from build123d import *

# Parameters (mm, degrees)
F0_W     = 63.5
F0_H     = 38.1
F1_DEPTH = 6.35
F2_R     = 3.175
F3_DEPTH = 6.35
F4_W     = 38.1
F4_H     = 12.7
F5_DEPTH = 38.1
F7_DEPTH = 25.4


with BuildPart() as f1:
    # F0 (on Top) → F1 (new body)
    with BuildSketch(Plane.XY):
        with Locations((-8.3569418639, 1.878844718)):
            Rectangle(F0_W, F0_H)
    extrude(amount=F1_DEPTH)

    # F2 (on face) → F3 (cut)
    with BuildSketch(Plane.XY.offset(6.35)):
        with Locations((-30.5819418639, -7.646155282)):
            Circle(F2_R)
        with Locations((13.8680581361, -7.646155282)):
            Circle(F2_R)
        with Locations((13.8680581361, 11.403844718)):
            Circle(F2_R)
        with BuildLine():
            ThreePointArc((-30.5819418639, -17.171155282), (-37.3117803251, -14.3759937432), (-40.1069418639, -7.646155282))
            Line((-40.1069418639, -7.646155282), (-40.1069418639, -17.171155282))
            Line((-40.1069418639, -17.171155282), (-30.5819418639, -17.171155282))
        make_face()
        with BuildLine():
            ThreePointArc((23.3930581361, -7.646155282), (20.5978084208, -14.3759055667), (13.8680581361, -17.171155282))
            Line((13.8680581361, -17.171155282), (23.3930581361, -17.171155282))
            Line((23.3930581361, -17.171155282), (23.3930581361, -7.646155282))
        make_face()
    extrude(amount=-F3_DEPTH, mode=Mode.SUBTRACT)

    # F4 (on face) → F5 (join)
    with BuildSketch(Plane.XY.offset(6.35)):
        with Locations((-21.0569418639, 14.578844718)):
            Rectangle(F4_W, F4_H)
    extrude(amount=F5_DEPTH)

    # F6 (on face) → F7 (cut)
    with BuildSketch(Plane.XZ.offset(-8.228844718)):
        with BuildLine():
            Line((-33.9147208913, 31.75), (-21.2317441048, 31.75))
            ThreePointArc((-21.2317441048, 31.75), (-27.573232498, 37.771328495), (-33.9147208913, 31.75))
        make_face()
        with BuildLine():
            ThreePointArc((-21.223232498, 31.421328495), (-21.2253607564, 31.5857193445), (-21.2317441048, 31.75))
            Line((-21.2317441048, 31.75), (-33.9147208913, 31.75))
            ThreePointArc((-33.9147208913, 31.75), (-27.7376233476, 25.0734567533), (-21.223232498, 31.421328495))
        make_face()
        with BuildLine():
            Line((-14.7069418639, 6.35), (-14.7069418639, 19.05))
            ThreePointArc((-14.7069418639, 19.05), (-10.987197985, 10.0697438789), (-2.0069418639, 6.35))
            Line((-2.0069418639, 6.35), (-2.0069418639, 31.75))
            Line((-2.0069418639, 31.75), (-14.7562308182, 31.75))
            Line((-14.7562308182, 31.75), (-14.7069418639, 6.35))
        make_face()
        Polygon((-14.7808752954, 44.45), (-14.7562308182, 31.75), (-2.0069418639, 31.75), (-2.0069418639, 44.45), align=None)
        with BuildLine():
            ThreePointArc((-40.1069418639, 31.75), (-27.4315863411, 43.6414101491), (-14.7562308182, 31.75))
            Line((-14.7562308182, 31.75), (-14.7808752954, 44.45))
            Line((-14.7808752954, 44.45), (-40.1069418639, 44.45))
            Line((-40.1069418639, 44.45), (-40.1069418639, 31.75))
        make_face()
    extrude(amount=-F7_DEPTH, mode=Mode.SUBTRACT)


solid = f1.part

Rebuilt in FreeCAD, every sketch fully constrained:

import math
import FreeCAD as App
import Part
import Sketcher

V = App.Vector
Q = App.Units.Quantity


def add_polygon(sketch, points):
    """Adds a closed chain of lines whose ends are joined by coincident constraints."""
    first, n = sketch.GeometryCount, len(points)
    for a, b in zip(points, points[1:] + points[:1]):
        sketch.addGeometry(Part.LineSegment(App.Vector(*a, 0), App.Vector(*b, 0)), False)
    for i in range(n):
        sketch.addConstraint(Sketcher.Constraint("Coincident", first + i, 2, first + (i + 1) % n, 1))

doc = App.newDocument("Part")
body = doc.addObject("PartDesign::Body", "Body")

# Sketch on XY plane
sketch1 = body.newObject("Sketcher::SketchObject", "Sketch")
sketch1.AttachmentSupport = (doc.getObject("XY_Plane"), [""])
sketch1.MapMode = "FlatFace"
add_polygon(sketch1, [(-40, 21), (-40, -17), (23, -17), (23, 21)])  # lines 0-3
sketch1.addConstraint([
    Sketcher.Constraint("Vertical", 0),
    Sketcher.Constraint("Horizontal", 1),
    Sketcher.Constraint("Vertical", 2),
    Sketcher.Constraint("Horizontal", 3),
    Sketcher.Constraint("DistanceX", 1, 1, 1, 2, Q("2.5 in")),
    Sketcher.Constraint("DistanceY", 0, 2, 0, 1, Q("1.5 in")),
    Sketcher.Constraint("DistanceX", 0, 2, -1, 1, 40.106942),
    Sketcher.Constraint("DistanceY", 0, 2, -1, 1, 17.171155),
])
pad1 = body.newObject("PartDesign::Pad", "Pad")
pad1.Profile = sketch1
pad1.Length = Q("0.25 in")

# Sketch on XY plane
sketch2 = body.newObject("Sketcher::SketchObject", "Sketch001")
sketch2.AttachmentSupport = (doc.getObject("XY_Plane"), [""])
sketch2.MapMode = "FlatFace"
sketch2.AttachmentOffset = App.Placement(V(0, 0, 0.25 * 25.4), App.Rotation())
sketch2.addGeometry([
    Part.Circle(V(-30.6, -7.6, 0), V(0, 0, 1), 3.2),  # 0
    Part.Circle(V(13.9, -7.6, 0), V(0, 0, 1), 3.2),  # 1
    Part.Circle(V(13.9, 11.4, 0), V(0, 0, 1), 3.2),  # 2
    Part.ArcOfCircle(Part.Circle(V(-30.6, -7.6, 0), V(0, 0, 1), 9.5), math.radians(-180), math.radians(-90)),  # 3
    Part.LineSegment(V(-40.1, -7.6, 0), V(-40.1, -17.2, 0)),  # 4
    Part.LineSegment(V(-40.1, -17.2, 0), V(-30.6, -17.2, 0)),  # 5
    Part.ArcOfCircle(Part.Circle(V(13.8, -7.6, 0), V(0, 0, 1), 9.5), math.radians(-90), math.radians(0)),  # 6
    Part.LineSegment(V(13.9, -17.2, 0), V(23.4, -17.2, 0)),  # 7
    Part.LineSegment(V(23.4, -17.2, 0), V(23.4, -7.6, 0)),  # 8
], False)
sketch2.addConstraint([
    Sketcher.Constraint("Coincident", 3, 1, 4, 1),
    Sketcher.Constraint("Coincident", 4, 2, 5, 1),
    Sketcher.Constraint("Coincident", 5, 2, 3, 2),
    Sketcher.Constraint("Coincident", 6, 1, 7, 1),
    Sketcher.Constraint("Coincident", 7, 2, 8, 1),
    Sketcher.Constraint("Coincident", 8, 2, 6, 2),
    Sketcher.Constraint("Vertical", 4),
    Sketcher.Constraint("Horizontal", 5),
    Sketcher.Constraint("Horizontal", 7),
    Sketcher.Constraint("Vertical", 8),
    Sketcher.Constraint("Equal", 0, 1),
    Sketcher.Constraint("Equal", 1, 2),
    Sketcher.Constraint("Horizontal", 0, 3, 1, 3),
    Sketcher.Constraint("Horizontal", 1, 3, 3, 1),
    Sketcher.Constraint("Horizontal", 5, 2, 6, 1),
    Sketcher.Constraint("Horizontal", 3, 1, 8, 2),
    Sketcher.Constraint("Vertical", 1, 3, 2, 3),
    Sketcher.Constraint("Vertical", 0, 3, 5, 2),
    Sketcher.Constraint("Vertical", 2, 3, 6, 1),
    Sketcher.Constraint("Equal", 5, 7),
    Sketcher.Constraint("Equal", 7, 4),
    Sketcher.Constraint("Diameter", 0, Q("0.25 in")),
    Sketcher.Constraint("DistanceX", 5, 1, 5, 2, Q("0.375 in")),
    Sketcher.Constraint("DistanceX", 0, 3, 1, 3, Q("1.75 in")),
    Sketcher.Constraint("DistanceY", 1, 3, 2, 3, Q("0.75 in")),
    Sketcher.Constraint("Radius", 3, 9.543338),
    Sketcher.Constraint("Radius", 6, 9.543642),
    Sketcher.Constraint("DistanceX", 0, 3, -1, 1, 30.581942),
    Sketcher.Constraint("DistanceY", 6, 3, -1, 1, 7.627532),
])
pocket1 = body.newObject("PartDesign::Pocket", "Pocket")
pocket1.Profile = sketch2
pocket1.Length = Q("0.25 in")

# Sketch on XY plane
sketch3 = body.newObject("Sketcher::SketchObject", "Sketch002")
sketch3.AttachmentSupport = (doc.getObject("XY_Plane"), [""])
sketch3.MapMode = "FlatFace"
sketch3.AttachmentOffset = App.Placement(V(0, 0, 0.25 * 25.4), App.Rotation())
add_polygon(sketch3, [(-40, 21), (-40, 8), (-2, 8), (-2, 21)])  # lines 0-3
sketch3.addConstraint([
    Sketcher.Constraint("Vertical", 0),
    Sketcher.Constraint("Horizontal", 1),
    Sketcher.Constraint("Vertical", 2),
    Sketcher.Constraint("Horizontal", 3),
    Sketcher.Constraint("DistanceX", 1, 1, 1, 2, Q("1.5 in")),
    Sketcher.Constraint("DistanceY", 0, 2, 0, 1, Q("0.5 in")),
    Sketcher.Constraint("DistanceX", 0, 2, -1, 1, 40.106942),
    Sketcher.Constraint("DistanceY", -1, 1, 0, 2, 8.228845),
])
pad2 = body.newObject("PartDesign::Pad", "Pad001")
pad2.Profile = sketch3
pad2.Length = Q("1.5 in")

# Sketch on XZ plane
sketch4 = body.newObject("Sketcher::SketchObject", "Sketch003")
sketch4.AttachmentSupport = (doc.getObject("XZ_Plane"), [""])
sketch4.MapMode = "FlatFace"
sketch4.AttachmentOffset = App.Placement(V(0, 0, -8.228845), App.Rotation())
sketch4.addGeometry([
    Part.ArcOfCircle(Part.Circle(V(-27.57, 31.42, 0), V(0, 0, 1), 6.35), math.radians(3), math.radians(177)),  # 0
    Part.ArcOfCircle(Part.Circle(V(-27.57, 31.42, 0), V(0, 0, 1), 6.35), math.radians(177), math.radians(360)),  # 1
    Part.ArcOfCircle(Part.Circle(V(-27.57, 31.42, 0), V(0, 0, 1), 6.35), math.radians(0), math.radians(2.97)),  # 2
    Part.LineSegment(V(-14.71, 6.35, 0), V(-14.71, 19.05, 0)),  # 3
    Part.ArcOfCircle(Part.Circle(V(-2.01, 19.05, 0), V(0, 0, 1), 12.7), math.radians(180), math.radians(270)),  # 4
    Part.LineSegment(V(-2.01, 6.35, 0), V(-2.01, 44.45, 0)),  # 5
    Part.LineSegment(V(-2.01, 44.45, 0), V(-40.11, 44.45, 0)),  # 6
    Part.LineSegment(V(-40.11, 44.45, 0), V(-40.11, 31.75, 0)),  # 7
    Part.ArcOfCircle(Part.Circle(V(-27.43, 30.94, 0), V(0, 0, 1), 12.7), math.radians(4), math.radians(176)),  # 8
    Part.LineSegment(V(-14.76, 31.75, 0), V(-14.71, 6.35, 0)),  # 9
], False)
sketch4.addConstraint([
    Sketcher.Constraint("Tangent", 0, 2, 1, 1),
    Sketcher.Constraint("Tangent", 1, 2, 2, 1),
    Sketcher.Constraint("Tangent", 2, 2, 0, 1),
    Sketcher.Constraint("Tangent", 3, 2, 4, 1),
    Sketcher.Constraint("Coincident", 4, 2, 5, 1),
    Sketcher.Constraint("Coincident", 5, 2, 6, 1),
    Sketcher.Constraint("Coincident", 6, 2, 7, 1),
    Sketcher.Constraint("Coincident", 7, 2, 8, 2),
    Sketcher.Constraint("Coincident", 8, 1, 9, 1),
    Sketcher.Constraint("Coincident", 9, 2, 3, 1),
    Sketcher.Constraint("Vertical", 3),
    Sketcher.Constraint("Vertical", 5),
    Sketcher.Constraint("Horizontal", 6),
    Sketcher.Constraint("Vertical", 7),
    Sketcher.Constraint("Horizontal", 2, 3, 1, 2),
    Sketcher.Constraint("Horizontal", 0, 2, 2, 2),
    Sketcher.Constraint("Horizontal", 2, 2, 7, 2),
    Sketcher.Constraint("Horizontal", 7, 2, 8, 1),
    Sketcher.Constraint("Horizontal", 4, 2, 9, 2),
    Sketcher.Constraint("Equal", 6, 5),
    Sketcher.Constraint("Equal", 3, 7),
    Sketcher.Constraint("Radius", 4, Q("0.5 in")),
    Sketcher.Constraint("Radius", 0, Q("0.25 in")),
    Sketcher.Constraint("DistanceX", 6, 2, 6, 1, Q("1.5 in")),
    Sketcher.Constraint("DistanceX", 3, 2, 4, 2, Q("0.5 in")),
    Sketcher.Constraint("DistanceY", -1, 1, 4, 3, Q("0.75 in")),
    Sketcher.Constraint("Radius", 8, 12.701196),
    Sketcher.Constraint("DistanceX", 1, 2, 8, 1, 6.467002),
    Sketcher.Constraint("DistanceY", -1, 1, 0, 3, 31.421328),
    Sketcher.Constraint("DistanceX", 4, 3, -1, 1, 2.006942),
    Sketcher.Constraint("DistanceX", 0, 2, -1, 1, 33.914721),
])
pocket2 = body.newObject("PartDesign::Pocket", "Pocket001")
pocket2.Profile = sketch4
pocket2.Length = Q("1 in")

doc.recompute()
